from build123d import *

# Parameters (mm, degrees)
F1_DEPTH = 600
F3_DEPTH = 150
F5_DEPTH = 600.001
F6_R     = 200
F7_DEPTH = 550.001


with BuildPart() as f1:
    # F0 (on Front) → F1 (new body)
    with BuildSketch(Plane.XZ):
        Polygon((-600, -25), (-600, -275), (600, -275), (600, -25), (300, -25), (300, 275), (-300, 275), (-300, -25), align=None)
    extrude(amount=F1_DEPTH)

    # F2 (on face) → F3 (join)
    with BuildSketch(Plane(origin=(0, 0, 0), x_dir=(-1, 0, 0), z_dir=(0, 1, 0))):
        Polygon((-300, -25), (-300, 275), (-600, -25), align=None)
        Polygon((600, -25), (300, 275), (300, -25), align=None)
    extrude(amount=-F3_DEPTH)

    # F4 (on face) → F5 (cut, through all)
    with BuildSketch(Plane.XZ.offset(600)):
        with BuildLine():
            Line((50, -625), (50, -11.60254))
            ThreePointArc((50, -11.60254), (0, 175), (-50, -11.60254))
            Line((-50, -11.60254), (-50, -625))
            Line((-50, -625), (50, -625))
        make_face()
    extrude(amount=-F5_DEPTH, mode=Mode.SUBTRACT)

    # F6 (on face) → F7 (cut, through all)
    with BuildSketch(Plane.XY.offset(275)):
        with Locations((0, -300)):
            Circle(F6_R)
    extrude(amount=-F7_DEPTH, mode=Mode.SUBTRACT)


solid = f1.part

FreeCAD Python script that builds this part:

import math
import FreeCAD as App
import Part
import Sketcher
from FreeCAD import Vector

doc = App.newDocument("Part")
params = doc.addObject("Spreadsheet::Sheet", "Params")
for row, (alias, value) in enumerate([
    ("sketch1_width", "1200 mm"),
    ("sketch1_width2", "300 mm"),
    ("sketch1_height", "250 mm"),
    ("pad1_length", "600 mm"),
    ("sketch2_width", "300 mm"),
    ("pad2_length", "150 mm"),
    ("sketch3_radius", "100 mm"),
    ("sketch3_width", "100 mm"),
    ("sketch4_diameter", "400 mm"),
], start=1):
    params.set(f"A{row}", alias)
    params.set(f"B{row}", "=" + value)
    params.setAlias(f"B{row}", alias)

body = doc.addObject("PartDesign::Body", "Body")

sketch1 = doc.addObject("Sketcher::SketchObject", "Sketch")
body.addObject(sketch1)
sketch1.AttachmentSupport = (doc.XZ_Plane, [""])
sketch1.MapMode = "FlatFace"
sketch1.addGeometry([
    Part.LineSegment(Vector(-600, -25, 0), Vector(-600, -275, 0)),
    Part.LineSegment(Vector(-600, -275, 0), Vector(600, -275, 0)),
    Part.LineSegment(Vector(600, -275, 0), Vector(600, -25, 0)),
    Part.LineSegment(Vector(600, -25, 0), Vector(300, -25, 0)),
    Part.LineSegment(Vector(300, -25, 0), Vector(300, 275, 0)),
    Part.LineSegment(Vector(300, 275, 0), Vector(-300, 275, 0)),
    Part.LineSegment(Vector(-300, 275, 0), Vector(-300, -25, 0)),
    Part.LineSegment(Vector(-300, -25, 0), Vector(-600, -25, 0)),
], False)
sketch1.addConstraint([
    Sketcher.Constraint("Coincident", 0, 2, 1, 1),
    Sketcher.Constraint("Coincident", 1, 2, 2, 1),
    Sketcher.Constraint("Coincident", 2, 2, 3, 1),
    Sketcher.Constraint("Coincident", 3, 2, 4, 1),
    Sketcher.Constraint("Coincident", 4, 2, 5, 1),
    Sketcher.Constraint("Coincident", 5, 2, 6, 1),
    Sketcher.Constraint("Coincident", 6, 2, 7, 1),
    Sketcher.Constraint("Coincident", 7, 2, 0, 1),
    Sketcher.Constraint("Vertical", 0),
    Sketcher.Constraint("Horizontal", 1),
    Sketcher.Constraint("Vertical", 2),
    Sketcher.Constraint("Horizontal", 3),
    Sketcher.Constraint("Vertical", 4),
    Sketcher.Constraint("Horizontal", 5),
    Sketcher.Constraint("Vertical", 6),
    Sketcher.Constraint("Horizontal", 7),
    Sketcher.Constraint("Symmetric", 3, 2, 6, 2, -2),
    Sketcher.Constraint("Equal", 3, 7),
    Sketcher.Constraint("Equal", 7, 4),
    Sketcher.Constraint("DistanceX", 1, 1, 1, 2, 1200.0),
    Sketcher.Constraint("DistanceX", 3, 2, 3, 1, 300.0),
    Sketcher.Constraint("DistanceY", 0, 2, 0, 1, 250.0),
    Sketcher.Constraint("DistanceY", 0, 2, -1, 1, 275.0),
])
sketch1.setExpression("Constraints[19]", "Params.sketch1_width")
sketch1.setExpression("Constraints[20]", "Params.sketch1_width2")
sketch1.setExpression("Constraints[21]", "Params.sketch1_height")
pad1 = doc.addObject("PartDesign::Pad", "Pad")
body.addObject(pad1)
pad1.Profile = sketch1
pad1.setExpression("Length", "Params.pad1_length")

sketch2 = doc.addObject("Sketcher::SketchObject", "Sketch001")
body.addObject(sketch2)
sketch2.AttachmentSupport = (doc.XZ_Plane, [""])
sketch2.MapMode = "FlatFace"
sketch2.addGeometry([
    Part.LineSegment(Vector(300, -25, 0), Vector(300, 275, 0)),
    Part.LineSegment(Vector(300, 275, 0), Vector(600, -25, 0)),
    Part.LineSegment(Vector(600, -25, 0), Vector(300, -25, 0)),
    Part.LineSegment(Vector(-600, -25, 0), Vector(-300, 275, 0)),
    Part.LineSegment(Vector(-300, 275, 0), Vector(-300, -25, 0)),
    Part.LineSegment(Vector(-300, -25, 0), Vector(-600, -25, 0)),
], False)
sketch2.addConstraint([
    Sketcher.Constraint("Coincident", 0, 2, 1, 1),
    Sketcher.Constraint("Coincident", 1, 2, 2, 1),
    Sketcher.Constraint("Coincident", 2, 2, 0, 1),
    Sketcher.Constraint("Coincident", 3, 2, 4, 1),
    Sketcher.Constraint("Coincident", 4, 2, 5, 1),
    Sketcher.Constraint("Coincident", 5, 2, 3, 1),
    Sketcher.Constraint("Vertical", 0),
    Sketcher.Constraint("Horizontal", 2),
    Sketcher.Constraint("Vertical", 4),
    Sketcher.Constraint("Horizontal", 5),
    Sketcher.Constraint("Symmetric", 0, 2, 3, 2, -2),
    Sketcher.Constraint("Symmetric", 1, 2, 5, 2, -2),
    Sketcher.Constraint("Perpendicular", 1, 3),
    Sketcher.Constraint("DistanceX", 2, 2, 2, 1, 300.0),
    Sketcher.Constraint("DistanceX", -1, 1, 0, 2, 300.0),
    Sketcher.Constraint("DistanceY", -1, 1, 0, 2, 275.0),
])
sketch2.setExpression("Constraints[13]", "Params.sketch2_width")
pad2 = doc.addObject("PartDesign::Pad", "Pad001")
body.addObject(pad2)
pad2.Profile = sketch2
pad2.setExpression("Length", "Params.pad2_length")

sketch3 = doc.addObject("Sketcher::SketchObject", "Sketch002")
body.addObject(sketch3)
sketch3.AttachmentSupport = (doc.XZ_Plane, [""])
sketch3.MapMode = "FlatFace"
sketch3.AttachmentOffset = App.Placement(Vector(0, 0, 600), App.Rotation())
sketch3.addGeometry([
    Part.LineSegment(Vector(50, -625, 0), Vector(50, -12, 0)),
    Part.ArcOfCircle(Part.Circle(Vector(0, 75, 0), Vector(0, 0, 1), 100), math.radians(-60), math.radians(240)),
    Part.LineSegment(Vector(-50, -12, 0), Vector(-50, -625, 0)),
    Part.LineSegment(Vector(-50, -625, 0), Vector(50, -625, 0)),
], False)
sketch3.addConstraint([
    Sketcher.Constraint("Coincident", 0, 2, 1, 1),
    Sketcher.Constraint("Coincident", 1, 2, 2, 1),
    Sketcher.Constraint("Coincident", 2, 2, 3, 1),
    Sketcher.Constraint("Coincident", 3, 2, 0, 1),
    Sketcher.Constraint("Vertical", 0),
    Sketcher.Constraint("Vertical", 2),
    Sketcher.Constraint("Horizontal", 3),
    Sketcher.Constraint("Symmetric", 0, 2, 1, 2, -2),
    Sketcher.Constraint("Radius", 1, 100.0),
    Sketcher.Constraint("DistanceX", 3, 1, 3, 2, 100.0),
    Sketcher.Constraint("DistanceY", -1, 1, 1, 3, 75.0),
    Sketcher.Constraint("DistanceY", 2, 2, -1, 1, 625.0),
])
sketch3.setExpression("Constraints[8]", "Params.sketch3_radius")
sketch3.setExpression("Constraints[9]", "Params.sketch3_width")
pocket1 = doc.addObject("PartDesign::Pocket", "Pocket")
body.addObject(pocket1)
pocket1.Profile = sketch3
pocket1.Type = "ThroughAll"

sketch4 = doc.addObject("Sketcher::SketchObject", "Sketch003")
body.addObject(sketch4)
sketch4.AttachmentSupport = (doc.XY_Plane, [""])
sketch4.MapMode = "FlatFace"
sketch4.AttachmentOffset = App.Placement(Vector(0, 0, 275), App.Rotation())
sketch4.addGeometry(Part.Circle(Vector(0, -300, 0), Vector(0, 0, 1), 200), False)
sketch4.addConstraint([
    Sketcher.Constraint("PointOnObject", 0, 3, -2),
    Sketcher.Constraint("Diameter", 0, 400.0),
    Sketcher.Constraint("DistanceY", 0, 3, -1, 1, 300.0),
])
sketch4.setExpression("Constraints[1]", "Params.sketch4_diameter")
pocket2 = doc.addObject("PartDesign::Pocket", "Pocket001")
body.addObject(pocket2)
pocket2.Profile = sketch4
pocket2.Type = "ThroughAll"

doc.recompute()
